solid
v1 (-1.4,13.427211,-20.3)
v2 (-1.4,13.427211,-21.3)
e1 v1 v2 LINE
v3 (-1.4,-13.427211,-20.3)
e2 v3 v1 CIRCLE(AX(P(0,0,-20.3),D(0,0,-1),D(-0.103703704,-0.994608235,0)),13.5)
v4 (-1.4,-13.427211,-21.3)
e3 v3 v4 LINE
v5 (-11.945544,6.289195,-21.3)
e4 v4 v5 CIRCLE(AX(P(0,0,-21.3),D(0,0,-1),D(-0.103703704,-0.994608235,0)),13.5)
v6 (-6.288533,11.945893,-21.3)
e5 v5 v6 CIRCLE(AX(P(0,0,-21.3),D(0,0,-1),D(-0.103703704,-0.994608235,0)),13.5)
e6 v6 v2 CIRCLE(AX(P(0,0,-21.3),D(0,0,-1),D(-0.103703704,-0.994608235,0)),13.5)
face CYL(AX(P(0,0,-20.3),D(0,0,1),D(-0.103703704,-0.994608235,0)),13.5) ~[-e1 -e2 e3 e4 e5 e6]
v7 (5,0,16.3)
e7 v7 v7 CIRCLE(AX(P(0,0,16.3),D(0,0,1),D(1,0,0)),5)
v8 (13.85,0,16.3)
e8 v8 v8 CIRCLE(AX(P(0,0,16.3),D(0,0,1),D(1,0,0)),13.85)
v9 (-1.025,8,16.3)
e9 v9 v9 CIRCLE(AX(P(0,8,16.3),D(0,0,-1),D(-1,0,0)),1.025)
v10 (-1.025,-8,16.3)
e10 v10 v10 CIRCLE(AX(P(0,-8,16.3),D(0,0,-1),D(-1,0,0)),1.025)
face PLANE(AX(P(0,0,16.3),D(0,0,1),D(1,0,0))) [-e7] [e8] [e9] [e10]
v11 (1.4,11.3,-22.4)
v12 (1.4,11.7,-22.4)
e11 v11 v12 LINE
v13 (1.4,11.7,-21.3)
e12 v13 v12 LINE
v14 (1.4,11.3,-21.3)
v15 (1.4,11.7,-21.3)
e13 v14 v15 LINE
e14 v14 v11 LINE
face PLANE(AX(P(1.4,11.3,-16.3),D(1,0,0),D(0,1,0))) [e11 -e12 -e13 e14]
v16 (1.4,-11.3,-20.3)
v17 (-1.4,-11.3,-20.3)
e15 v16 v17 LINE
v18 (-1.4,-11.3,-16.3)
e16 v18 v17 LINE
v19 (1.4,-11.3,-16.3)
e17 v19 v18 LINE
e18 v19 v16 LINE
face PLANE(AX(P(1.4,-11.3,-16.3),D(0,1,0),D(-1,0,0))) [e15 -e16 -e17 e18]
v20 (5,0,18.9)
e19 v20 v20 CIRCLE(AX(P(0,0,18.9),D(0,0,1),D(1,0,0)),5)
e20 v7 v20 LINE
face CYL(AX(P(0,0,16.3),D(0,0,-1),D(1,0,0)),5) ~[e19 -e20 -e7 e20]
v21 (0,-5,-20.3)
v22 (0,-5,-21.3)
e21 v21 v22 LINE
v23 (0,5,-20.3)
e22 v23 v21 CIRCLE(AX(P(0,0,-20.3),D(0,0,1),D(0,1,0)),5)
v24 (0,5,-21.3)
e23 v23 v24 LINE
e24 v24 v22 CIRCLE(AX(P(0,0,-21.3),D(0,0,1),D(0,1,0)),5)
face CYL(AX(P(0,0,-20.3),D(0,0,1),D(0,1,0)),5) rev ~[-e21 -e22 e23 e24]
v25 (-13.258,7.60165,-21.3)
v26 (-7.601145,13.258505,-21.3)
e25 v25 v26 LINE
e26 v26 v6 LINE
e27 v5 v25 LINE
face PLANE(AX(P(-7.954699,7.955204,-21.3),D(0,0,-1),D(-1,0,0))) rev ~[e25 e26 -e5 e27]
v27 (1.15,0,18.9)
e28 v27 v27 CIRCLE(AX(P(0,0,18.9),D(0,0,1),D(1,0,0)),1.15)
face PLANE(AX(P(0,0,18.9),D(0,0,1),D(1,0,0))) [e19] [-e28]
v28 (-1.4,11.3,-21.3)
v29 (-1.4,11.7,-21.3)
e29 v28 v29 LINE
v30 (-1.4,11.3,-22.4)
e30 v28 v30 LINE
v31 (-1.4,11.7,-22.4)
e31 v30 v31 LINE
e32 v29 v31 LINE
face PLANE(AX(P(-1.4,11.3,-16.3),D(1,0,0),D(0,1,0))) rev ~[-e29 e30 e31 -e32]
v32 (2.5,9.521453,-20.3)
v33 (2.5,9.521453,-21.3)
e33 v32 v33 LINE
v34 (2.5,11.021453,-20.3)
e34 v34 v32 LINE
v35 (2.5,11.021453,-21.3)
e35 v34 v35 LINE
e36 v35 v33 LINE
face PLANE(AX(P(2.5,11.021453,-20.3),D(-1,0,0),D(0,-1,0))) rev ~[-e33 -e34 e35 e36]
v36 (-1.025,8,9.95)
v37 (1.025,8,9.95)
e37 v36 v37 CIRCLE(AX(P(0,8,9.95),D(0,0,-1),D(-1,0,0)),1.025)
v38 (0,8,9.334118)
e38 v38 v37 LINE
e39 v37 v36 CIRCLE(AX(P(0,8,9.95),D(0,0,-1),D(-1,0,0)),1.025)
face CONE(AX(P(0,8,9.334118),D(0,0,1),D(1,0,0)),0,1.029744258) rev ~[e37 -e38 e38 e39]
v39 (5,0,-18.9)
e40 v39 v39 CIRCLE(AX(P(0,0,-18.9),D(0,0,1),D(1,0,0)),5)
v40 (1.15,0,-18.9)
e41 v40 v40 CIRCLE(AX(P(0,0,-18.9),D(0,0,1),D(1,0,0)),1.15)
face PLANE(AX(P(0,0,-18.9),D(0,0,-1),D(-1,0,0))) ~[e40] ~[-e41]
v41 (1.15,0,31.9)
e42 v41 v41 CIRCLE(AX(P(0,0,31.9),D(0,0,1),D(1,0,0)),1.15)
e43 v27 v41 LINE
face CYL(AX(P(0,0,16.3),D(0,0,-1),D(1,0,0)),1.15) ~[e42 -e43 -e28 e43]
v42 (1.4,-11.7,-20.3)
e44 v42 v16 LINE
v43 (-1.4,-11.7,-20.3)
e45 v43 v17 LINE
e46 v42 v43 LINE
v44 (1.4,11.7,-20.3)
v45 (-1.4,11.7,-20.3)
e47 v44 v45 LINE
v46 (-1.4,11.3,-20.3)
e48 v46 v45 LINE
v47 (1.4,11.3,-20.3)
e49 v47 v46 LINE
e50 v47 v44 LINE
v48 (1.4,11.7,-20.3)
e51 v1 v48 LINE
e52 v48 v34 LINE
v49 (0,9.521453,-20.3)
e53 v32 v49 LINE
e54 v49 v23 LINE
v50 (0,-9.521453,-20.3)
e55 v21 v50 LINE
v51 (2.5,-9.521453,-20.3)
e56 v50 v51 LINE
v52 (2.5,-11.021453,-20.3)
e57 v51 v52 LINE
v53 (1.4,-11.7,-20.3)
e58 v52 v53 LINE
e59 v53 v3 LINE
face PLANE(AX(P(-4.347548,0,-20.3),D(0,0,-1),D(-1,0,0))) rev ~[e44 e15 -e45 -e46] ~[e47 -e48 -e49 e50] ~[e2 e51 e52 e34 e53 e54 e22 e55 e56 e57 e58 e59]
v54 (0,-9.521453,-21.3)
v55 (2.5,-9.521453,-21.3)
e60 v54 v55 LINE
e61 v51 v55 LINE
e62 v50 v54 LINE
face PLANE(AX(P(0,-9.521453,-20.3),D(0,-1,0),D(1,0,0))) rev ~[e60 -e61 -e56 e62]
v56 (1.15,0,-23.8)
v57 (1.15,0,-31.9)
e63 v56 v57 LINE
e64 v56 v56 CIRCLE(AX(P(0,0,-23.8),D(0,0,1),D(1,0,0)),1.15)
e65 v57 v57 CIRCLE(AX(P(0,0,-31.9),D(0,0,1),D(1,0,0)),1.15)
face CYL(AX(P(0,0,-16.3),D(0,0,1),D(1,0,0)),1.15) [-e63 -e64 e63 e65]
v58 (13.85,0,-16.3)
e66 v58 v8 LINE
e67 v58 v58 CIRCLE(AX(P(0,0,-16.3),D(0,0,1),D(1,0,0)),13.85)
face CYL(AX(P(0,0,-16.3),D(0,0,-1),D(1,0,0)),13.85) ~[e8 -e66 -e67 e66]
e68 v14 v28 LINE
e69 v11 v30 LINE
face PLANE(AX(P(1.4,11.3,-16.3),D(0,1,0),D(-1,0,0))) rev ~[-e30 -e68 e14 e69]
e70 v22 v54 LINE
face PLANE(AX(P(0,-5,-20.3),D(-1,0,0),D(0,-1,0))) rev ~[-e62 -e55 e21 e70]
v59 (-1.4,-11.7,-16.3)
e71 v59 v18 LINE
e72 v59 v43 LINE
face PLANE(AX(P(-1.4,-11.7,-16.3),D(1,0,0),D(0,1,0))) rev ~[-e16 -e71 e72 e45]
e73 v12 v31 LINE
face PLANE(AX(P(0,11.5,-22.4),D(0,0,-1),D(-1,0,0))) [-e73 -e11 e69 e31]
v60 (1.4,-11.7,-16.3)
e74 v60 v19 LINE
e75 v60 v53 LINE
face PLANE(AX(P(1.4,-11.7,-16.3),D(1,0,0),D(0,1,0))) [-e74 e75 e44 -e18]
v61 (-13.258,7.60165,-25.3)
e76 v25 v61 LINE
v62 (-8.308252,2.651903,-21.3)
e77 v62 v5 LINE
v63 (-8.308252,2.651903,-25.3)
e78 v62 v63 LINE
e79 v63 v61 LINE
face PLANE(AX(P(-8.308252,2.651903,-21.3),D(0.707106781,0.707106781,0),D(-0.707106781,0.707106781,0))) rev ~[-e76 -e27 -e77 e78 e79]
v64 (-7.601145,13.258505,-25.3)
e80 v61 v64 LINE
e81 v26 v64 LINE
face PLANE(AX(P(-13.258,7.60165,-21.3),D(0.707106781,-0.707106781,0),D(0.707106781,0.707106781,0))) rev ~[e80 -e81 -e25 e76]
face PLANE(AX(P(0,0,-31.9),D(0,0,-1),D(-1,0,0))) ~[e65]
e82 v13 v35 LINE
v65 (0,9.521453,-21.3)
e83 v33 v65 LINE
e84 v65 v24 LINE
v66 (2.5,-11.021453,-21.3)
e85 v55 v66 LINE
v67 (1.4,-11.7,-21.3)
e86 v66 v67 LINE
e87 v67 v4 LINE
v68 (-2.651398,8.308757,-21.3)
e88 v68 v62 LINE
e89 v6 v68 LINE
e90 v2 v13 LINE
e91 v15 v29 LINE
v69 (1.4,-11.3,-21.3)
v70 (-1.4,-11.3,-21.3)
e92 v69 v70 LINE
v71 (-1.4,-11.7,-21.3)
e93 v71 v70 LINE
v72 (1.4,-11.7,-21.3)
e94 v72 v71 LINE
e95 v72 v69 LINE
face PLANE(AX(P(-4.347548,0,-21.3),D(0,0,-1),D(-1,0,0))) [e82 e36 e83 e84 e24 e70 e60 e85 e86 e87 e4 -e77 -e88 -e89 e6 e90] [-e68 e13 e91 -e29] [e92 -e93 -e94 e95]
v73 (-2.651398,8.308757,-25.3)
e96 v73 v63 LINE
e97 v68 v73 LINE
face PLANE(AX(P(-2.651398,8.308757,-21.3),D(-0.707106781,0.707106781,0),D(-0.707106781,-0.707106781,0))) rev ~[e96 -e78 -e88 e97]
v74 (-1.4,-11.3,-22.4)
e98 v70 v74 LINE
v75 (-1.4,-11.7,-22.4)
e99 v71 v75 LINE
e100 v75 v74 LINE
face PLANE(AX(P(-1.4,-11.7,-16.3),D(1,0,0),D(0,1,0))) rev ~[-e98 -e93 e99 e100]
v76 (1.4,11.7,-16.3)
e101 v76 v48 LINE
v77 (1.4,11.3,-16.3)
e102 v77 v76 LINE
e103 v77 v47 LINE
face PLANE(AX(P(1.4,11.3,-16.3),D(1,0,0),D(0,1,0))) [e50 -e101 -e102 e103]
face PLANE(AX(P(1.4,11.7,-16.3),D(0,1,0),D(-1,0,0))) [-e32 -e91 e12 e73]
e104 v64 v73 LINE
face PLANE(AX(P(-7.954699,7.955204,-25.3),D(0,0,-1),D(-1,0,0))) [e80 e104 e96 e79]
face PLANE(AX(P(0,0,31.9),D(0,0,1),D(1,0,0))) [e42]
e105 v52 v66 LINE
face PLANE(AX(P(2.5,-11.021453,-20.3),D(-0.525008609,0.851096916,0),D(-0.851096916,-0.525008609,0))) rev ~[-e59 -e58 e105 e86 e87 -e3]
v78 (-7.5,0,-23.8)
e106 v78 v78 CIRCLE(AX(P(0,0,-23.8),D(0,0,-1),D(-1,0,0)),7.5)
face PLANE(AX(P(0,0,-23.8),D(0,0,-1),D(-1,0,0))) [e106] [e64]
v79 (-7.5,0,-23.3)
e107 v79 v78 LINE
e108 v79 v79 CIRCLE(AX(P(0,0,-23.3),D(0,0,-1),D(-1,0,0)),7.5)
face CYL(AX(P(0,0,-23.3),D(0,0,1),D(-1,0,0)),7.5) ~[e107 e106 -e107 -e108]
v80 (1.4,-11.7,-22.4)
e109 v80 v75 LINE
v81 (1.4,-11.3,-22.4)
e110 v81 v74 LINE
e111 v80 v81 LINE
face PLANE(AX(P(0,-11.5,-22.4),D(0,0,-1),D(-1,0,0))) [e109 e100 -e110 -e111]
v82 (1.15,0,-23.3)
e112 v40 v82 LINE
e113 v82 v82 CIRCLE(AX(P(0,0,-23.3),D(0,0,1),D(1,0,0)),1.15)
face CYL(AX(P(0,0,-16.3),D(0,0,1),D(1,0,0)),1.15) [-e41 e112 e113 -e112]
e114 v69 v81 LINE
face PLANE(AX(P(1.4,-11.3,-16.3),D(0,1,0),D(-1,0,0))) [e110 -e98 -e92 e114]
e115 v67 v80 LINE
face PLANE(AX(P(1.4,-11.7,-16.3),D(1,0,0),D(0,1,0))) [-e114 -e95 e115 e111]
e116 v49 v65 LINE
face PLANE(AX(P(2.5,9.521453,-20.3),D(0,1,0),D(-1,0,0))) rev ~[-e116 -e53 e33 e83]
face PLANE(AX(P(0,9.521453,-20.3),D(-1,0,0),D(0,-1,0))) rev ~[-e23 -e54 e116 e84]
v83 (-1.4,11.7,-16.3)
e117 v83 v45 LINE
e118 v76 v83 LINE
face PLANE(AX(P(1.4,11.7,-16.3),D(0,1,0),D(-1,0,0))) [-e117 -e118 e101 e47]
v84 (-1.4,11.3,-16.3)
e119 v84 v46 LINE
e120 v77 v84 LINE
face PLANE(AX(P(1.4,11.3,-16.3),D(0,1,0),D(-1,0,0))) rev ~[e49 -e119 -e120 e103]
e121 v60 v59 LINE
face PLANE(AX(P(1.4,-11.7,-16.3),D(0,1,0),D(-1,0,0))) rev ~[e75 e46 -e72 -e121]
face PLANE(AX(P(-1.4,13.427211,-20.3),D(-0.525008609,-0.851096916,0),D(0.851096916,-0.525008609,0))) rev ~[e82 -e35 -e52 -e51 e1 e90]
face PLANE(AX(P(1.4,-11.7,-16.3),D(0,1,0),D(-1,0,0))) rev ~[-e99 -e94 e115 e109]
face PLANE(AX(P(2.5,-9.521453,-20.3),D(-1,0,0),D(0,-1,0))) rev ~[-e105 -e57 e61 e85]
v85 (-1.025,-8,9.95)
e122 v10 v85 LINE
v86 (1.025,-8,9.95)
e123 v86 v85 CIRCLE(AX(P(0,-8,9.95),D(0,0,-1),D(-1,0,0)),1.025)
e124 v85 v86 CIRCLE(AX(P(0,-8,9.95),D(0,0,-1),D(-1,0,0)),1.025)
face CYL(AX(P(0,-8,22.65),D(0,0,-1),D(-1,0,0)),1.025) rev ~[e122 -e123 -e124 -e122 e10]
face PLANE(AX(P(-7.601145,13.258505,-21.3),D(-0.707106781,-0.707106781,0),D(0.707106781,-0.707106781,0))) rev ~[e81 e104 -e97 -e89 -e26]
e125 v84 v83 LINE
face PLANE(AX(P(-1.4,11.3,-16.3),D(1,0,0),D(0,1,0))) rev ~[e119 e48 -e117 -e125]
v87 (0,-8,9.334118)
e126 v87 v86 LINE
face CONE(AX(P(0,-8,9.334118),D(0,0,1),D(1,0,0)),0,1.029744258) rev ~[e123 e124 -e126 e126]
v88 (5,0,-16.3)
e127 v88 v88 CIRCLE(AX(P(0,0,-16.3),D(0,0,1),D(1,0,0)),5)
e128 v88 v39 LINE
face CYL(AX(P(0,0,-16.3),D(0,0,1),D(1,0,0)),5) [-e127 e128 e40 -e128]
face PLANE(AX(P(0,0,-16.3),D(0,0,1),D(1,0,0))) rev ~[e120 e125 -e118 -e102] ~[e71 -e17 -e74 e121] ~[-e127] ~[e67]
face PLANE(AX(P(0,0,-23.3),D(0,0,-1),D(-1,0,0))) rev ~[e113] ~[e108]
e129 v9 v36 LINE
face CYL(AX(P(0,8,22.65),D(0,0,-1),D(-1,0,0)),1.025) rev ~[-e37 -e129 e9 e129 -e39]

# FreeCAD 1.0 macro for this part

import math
import FreeCAD as App
import Part
import Sketcher
Q = App.Units.Quantity


def add_polygon(sketch, points):
    """Adds a closed chain of lines whose ends are joined by coincident constraints."""
    first, n = sketch.GeometryCount, len(points)
    for a, b in zip(points, points[1:] + points[:1]):
        sketch.addGeometry(Part.LineSegment(App.Vector(*a, 0), App.Vector(*b, 0)), False)
    for i in range(n):
        sketch.addConstraint(Sketcher.Constraint("Coincident", first + i, 2, first + (i + 1) % n, 1))

doc = App.newDocument("Part")
body = doc.addObject("PartDesign::Body", "Body")

# Sketch on XY plane
sketch1 = doc.addObject("Sketcher::SketchObject", "Sketch")
body.addObject(sketch1)
sketch1.AttachmentSupport = (doc.XY_Plane, [""])
sketch1.MapMode = "FlatFace"
sketch1.addGeometry(Part.Circle(App.Vector(0, 0, 0), App.Vector(0, 0, 1), 14), False)
sketch1.addConstraint(Sketcher.Constraint("Coincident", 0, 3, -1, 1))
sketch1.addConstraint(Sketcher.Constraint("Diameter", 0, Q("27.7 mm")))
pad1 = doc.addObject("PartDesign::Pad", "Pad")
body.addObject(pad1)
pad1.Profile = sketch1
pad1.Type = "TwoLengths"
pad1.Length = 16.3
pad1.Length2 = 16.3

# Sketch on XY plane
sketch2 = doc.addObject("Sketcher::SketchObject", "Sketch001")
body.addObject(sketch2)
sketch2.AttachmentSupport = (doc.XY_Plane, [""])
sketch2.MapMode = "FlatFace"
sketch2.AttachmentOffset = App.Placement(App.Vector(0, 0, 16.3), App.Rotation())
sketch2.addGeometry(Part.Circle(App.Vector(0, 0, 0), App.Vector(0, 0, 1), 1.1), False)
sketch2.addConstraint(Sketcher.Constraint("Coincident", 0, 3, -1, 1))
sketch2.addConstraint(Sketcher.Constraint("Diameter", 0, Q("2.3 mm")))
pad2 = doc.addObject("PartDesign::Pad", "Pad001")
body.addObject(pad2)
pad2.Profile = sketch2
pad2.Length = 15.6

# Sketch on XY plane
sketch3 = doc.addObject("Sketcher::SketchObject", "Sketch002")
body.addObject(sketch3)
sketch3.AttachmentSupport = (doc.XY_Plane, [""])
sketch3.MapMode = "FlatFace"
sketch3.AttachmentOffset = App.Placement(App.Vector(0, 0, 16.3), App.Rotation())
sketch3.addGeometry(Part.Circle(App.Vector(0, 0, 0), App.Vector(0, 0, 1), 5), False)
sketch3.addGeometry(Part.Circle(App.Vector(0, 0, 0), App.Vector(0, 0, 1), 1.1), False)
sketch3.addConstraint(Sketcher.Constraint("Coincident", 0, 3, -1, 1))
sketch3.addConstraint(Sketcher.Constraint("Coincident", 1, 3, -1, 1))
sketch3.addConstraint(Sketcher.Constraint("Diameter", 0, Q("10 mm")))
sketch3.addConstraint(Sketcher.Constraint("Diameter", 1, Q("2.3 mm")))
pad3 = doc.addObject("PartDesign::Pad", "Pad002")
body.addObject(pad3)
pad3.Profile = sketch3
pad3.Length = 2.6

# Sketch on XY plane
sketch4 = doc.addObject("Sketcher::SketchObject", "Sketch003")
body.addObject(sketch4)
sketch4.AttachmentSupport = (doc.XY_Plane, [""])
sketch4.MapMode = "FlatFace"
sketch4.AttachmentOffset = App.Placement(App.Vector(0, 0, 16.3), App.Rotation())
sketch4.addGeometry(Part.Circle(App.Vector(0, 8, 0), App.Vector(0, 0, 1), 1), False)
sketch4.addGeometry(Part.Circle(App.Vector(0, -8, 0), App.Vector(0, 0, 1), 1), False)
sketch4.addConstraint(Sketcher.Constraint("Equal", 0, 1))
sketch4.addConstraint(Sketcher.Constraint("Symmetric", 0, 3, 1, 3, -1, 1))
sketch4.addConstraint(Sketcher.Constraint("PointOnObject", 0, 3, -2))
sketch4.addConstraint(Sketcher.Constraint("Diameter", 0, Q("2.05 mm")))
sketch4.addConstraint(Sketcher.Constraint("DistanceY", -1, 1, 0, 3, Q("8 mm")))
doc.recompute()
hole = doc.addObject("PartDesign::Hole", "Hole")
body.addObject(hole)
hole.Profile = sketch4
hole.ThreadType = "None"
hole.Diameter = 2.05
hole.DepthType = "Dimension"
hole.Depth = 6.35
hole.DrillPoint = "Angled"
hole.DrillPointAngle = 118
doc.recompute()

mirrored = doc.addObject("PartDesign::Mirrored", "Mirrored")
body.addObject(mirrored)
mirrored.Originals = [pad2, pad3]
mirrored.MirrorPlane = (doc.XY_Plane, [""])
body.Tip = mirrored

# Sketch on XY plane
sketch5 = doc.addObject("Sketcher::SketchObject", "Sketch004")
body.addObject(sketch5)
sketch5.AttachmentSupport = (doc.XY_Plane, [""])
sketch5.MapMode = "FlatFace"
sketch5.AttachmentOffset = App.Placement(App.Vector(0, 0, -16.3), App.Rotation())
add_polygon(sketch5, [(1.4, 11.7), (1.4, 11.3), (-1.4, 11.3), (-1.4, 11.7)])  # lines 0-3
add_polygon(sketch5, [(1.4, -11.3), (1.4, -11.7), (-1.4, -11.7), (-1.4, -11.3)])  # lines 4-7
sketch5.addConstraint(Sketcher.Constraint("Vertical", 0))
sketch5.addConstraint(Sketcher.Constraint("Horizontal", 1))
sketch5.addConstraint(Sketcher.Constraint("Vertical", 2))
sketch5.addConstraint(Sketcher.Constraint("Horizontal", 3))
sketch5.addConstraint(Sketcher.Constraint("Vertical", 4))
sketch5.addConstraint(Sketcher.Constraint("Horizontal", 5))
sketch5.addConstraint(Sketcher.Constraint("Vertical", 6))
sketch5.addConstraint(Sketcher.Constraint("Horizontal", 7))
sketch5.addConstraint(Sketcher.Constraint("Symmetric", 2, 2, 4, 2, -1, 1))
sketch5.addConstraint(Sketcher.Constraint("Symmetric", 0, 2, 6, 2, -1, 1))
sketch5.addConstraint(Sketcher.Constraint("Vertical", 3, 2, 4, 2))
sketch5.addConstraint(Sketcher.Constraint("DistanceX", 1, 2, 1, 1, Q("2.8 mm")))
sketch5.addConstraint(Sketcher.Constraint("DistanceY", 0, 2, 0, 1, Q("0.4 mm")))
sketch5.addConstraint(Sketcher.Constraint("DistanceY", 4, 2, 0, 2, Q("23 mm")))
pad4 = doc.addObject("PartDesign::Pad", "Pad003")
body.addObject(pad4)
pad4.Profile = sketch5
pad4.Length = 6.1
pad4.Reversed = True

# Sketch on XY plane
sketch6 = doc.addObject("Sketcher::SketchObject", "Sketch005")
body.addObject(sketch6)
sketch6.AttachmentSupport = (doc.XY_Plane, [""])
sketch6.MapMode = "FlatFace"
sketch6.AttachmentOffset = App.Placement(App.Vector(0, 0, -20.3), App.Rotation())
sketch6.addGeometry(Part.LineSegment(App.Vector(-1.4, 13.4, 0), App.Vector(2.5, 11, 0)), False)
sketch6.addGeometry(Part.LineSegment(App.Vector(2.5, 11, 0), App.Vector(2.5, 9.5, 0)), False)
sketch6.addGeometry(Part.LineSegment(App.Vector(2.5, 9.5, 0), App.Vector(0, 9.5, 0)), False)
sketch6.addGeometry(Part.LineSegment(App.Vector(0, 9.5, 0), App.Vector(0, 5, 0)), False)
sketch6.addGeometry(Part.ArcOfCircle(Part.Circle(App.Vector(0, 0, 0), App.Vector(0, 0, 1), 5), math.radians(90), math.radians(270)), False)
sketch6.addGeometry(Part.LineSegment(App.Vector(0, -5, 0), App.Vector(0, -9.5, 0)), False)
sketch6.addGeometry(Part.LineSegment(App.Vector(0, -9.5, 0), App.Vector(2.5, -9.5, 0)), False)
sketch6.addGeometry(Part.LineSegment(App.Vector(2.5, -9.5, 0), App.Vector(2.5, -11, 0)), False)
sketch6.addGeometry(Part.LineSegment(App.Vector(2.5, -11, 0), App.Vector(-1.4, -13.4, 0)), False)
sketch6.addGeometry(Part.ArcOfCircle(Part.Circle(App.Vector(0, 0, 0), App.Vector(0, 0, 1), 13.5), math.radians(96), math.radians(264)), False)
sketch6.addConstraint(Sketcher.Constraint("Coincident", 0, 2, 1, 1))
sketch6.addConstraint(Sketcher.Constraint("Coincident", 1, 2, 2, 1))
sketch6.addConstraint(Sketcher.Constraint("Coincident", 2, 2, 3, 1))
sketch6.addConstraint(Sketcher.Constraint("Coincident", 3, 2, 4, 1))
sketch6.addConstraint(Sketcher.Constraint("Coincident", 4, 2, 5, 1))
sketch6.addConstraint(Sketcher.Constraint("Coincident", 5, 2, 6, 1))
sketch6.addConstraint(Sketcher.Constraint("Coincident", 6, 2, 7, 1))
sketch6.addConstraint(Sketcher.Constraint("Coincident", 7, 2, 8, 1))
sketch6.addConstraint(Sketcher.Constraint("Coincident", 8, 2, 9, 2))
sketch6.addConstraint(Sketcher.Constraint("Coincident", 9, 1, 0, 1))
sketch6.addConstraint(Sketcher.Constraint("Vertical", 1))
sketch6.addConstraint(Sketcher.Constraint("Horizontal", 2))
sketch6.addConstraint(Sketcher.Constraint("Vertical", 3))
sketch6.addConstraint(Sketcher.Constraint("Vertical", 5))
sketch6.addConstraint(Sketcher.Constraint("Horizontal", 6))
sketch6.addConstraint(Sketcher.Constraint("Vertical", 7))
sketch6.addConstraint(Sketcher.Constraint("Coincident", 4, 3, -1, 1))
sketch6.addConstraint(Sketcher.Constraint("Coincident", 9, 3, -1, 1))
sketch6.addConstraint(Sketcher.Constraint("Symmetric", 2, 2, 5, 2, -1, 1))
sketch6.addConstraint(Sketcher.Constraint("Symmetric", 0, 2, 7, 2, -1))
sketch6.addConstraint(Sketcher.Constraint("PointOnObject", 2, 2, -2))
sketch6.addConstraint(Sketcher.Constraint("Vertical", 8, 2, 9, 1))
sketch6.addConstraint(Sketcher.Constraint("Radius", 4, Q("5 mm")))
sketch6.addConstraint(Sketcher.Constraint("Radius", 9, Q("13.5 mm")))
sketch6.addConstraint(Sketcher.Constraint("DistanceX", 2, 2, 2, 1, Q("2.5 mm")))
sketch6.addConstraint(Sketcher.Constraint("DistanceY", 1, 2, 1, 1, Q("1.5 mm")))
sketch6.addConstraint(Sketcher.Constraint("DistanceX", 8, 2, -1, 1, Q("1.4 mm")))
sketch6.addConstraint(Sketcher.Constraint("Distance", 0, Q("4.582322 mm")))
pad5 = doc.addObject("PartDesign::Pad", "Pad004")
body.addObject(pad5)
pad5.Profile = sketch6
pad5.Length = 1
pad5.Reversed = True

# Sketch on XY plane
sketch7 = doc.addObject("Sketcher::SketchObject", "Sketch006")
body.addObject(sketch7)
sketch7.AttachmentSupport = (doc.XY_Plane, [""])
sketch7.MapMode = "FlatFace"
sketch7.AttachmentOffset = App.Placement(App.Vector(0, 0, -23.3), App.Rotation())
sketch7.addGeometry(Part.Circle(App.Vector(0, 0, 0), App.Vector(0, 0, 1), 8), False)
sketch7.addConstraint(Sketcher.Constraint("Coincident", 0, 3, -1, 1))
sketch7.addConstraint(Sketcher.Constraint("Diameter", 0, Q("15 mm")))
pad6 = doc.addObject("PartDesign::Pad", "Pad005")
body.addObject(pad6)
pad6.Profile = sketch7
pad6.Length = 0.5
pad6.Reversed = True

# Sketch on XY plane
sketch8 = doc.addObject("Sketcher::SketchObject", "Sketch007")
body.addObject(sketch8)
sketch8.AttachmentSupport = (doc.XY_Plane, [""])
sketch8.MapMode = "FlatFace"
sketch8.AttachmentOffset = App.Placement(App.Vector(0, 0, -21.3), App.Rotation())
add_polygon(sketch8, [(-3, 8), (-8, 3), (-13, 8), (-8, 13)])  # lines 0-3
sketch8.addConstraint(Sketcher.Constraint("Perpendicular", 0, 1))
sketch8.addConstraint(Sketcher.Constraint("Perpendicular", 1, 2))
sketch8.addConstraint(Sketcher.Constraint("Perpendicular", 2, 3))
sketch8.addConstraint(Sketcher.Constraint("Angle", 0, Q("-135 deg")))
sketch8.addConstraint(Sketcher.Constraint("Distance", 0, Q("8 mm")))
sketch8.addConstraint(Sketcher.Constraint("Distance", 1, Q("7 mm")))
sketch8.addConstraint(Sketcher.Constraint("DistanceX", 1, 2, -1, 1, Q("13.258 mm")))
sketch8.addConstraint(Sketcher.Constraint("DistanceY", -1, 1, 1, 2, Q("7.60165 mm")))
pad7 = doc.addObject("PartDesign::Pad", "Pad006")
body.addObject(pad7)
pad7.Profile = sketch8
pad7.Length = 4
pad7.Reversed = True

doc.recompute()
